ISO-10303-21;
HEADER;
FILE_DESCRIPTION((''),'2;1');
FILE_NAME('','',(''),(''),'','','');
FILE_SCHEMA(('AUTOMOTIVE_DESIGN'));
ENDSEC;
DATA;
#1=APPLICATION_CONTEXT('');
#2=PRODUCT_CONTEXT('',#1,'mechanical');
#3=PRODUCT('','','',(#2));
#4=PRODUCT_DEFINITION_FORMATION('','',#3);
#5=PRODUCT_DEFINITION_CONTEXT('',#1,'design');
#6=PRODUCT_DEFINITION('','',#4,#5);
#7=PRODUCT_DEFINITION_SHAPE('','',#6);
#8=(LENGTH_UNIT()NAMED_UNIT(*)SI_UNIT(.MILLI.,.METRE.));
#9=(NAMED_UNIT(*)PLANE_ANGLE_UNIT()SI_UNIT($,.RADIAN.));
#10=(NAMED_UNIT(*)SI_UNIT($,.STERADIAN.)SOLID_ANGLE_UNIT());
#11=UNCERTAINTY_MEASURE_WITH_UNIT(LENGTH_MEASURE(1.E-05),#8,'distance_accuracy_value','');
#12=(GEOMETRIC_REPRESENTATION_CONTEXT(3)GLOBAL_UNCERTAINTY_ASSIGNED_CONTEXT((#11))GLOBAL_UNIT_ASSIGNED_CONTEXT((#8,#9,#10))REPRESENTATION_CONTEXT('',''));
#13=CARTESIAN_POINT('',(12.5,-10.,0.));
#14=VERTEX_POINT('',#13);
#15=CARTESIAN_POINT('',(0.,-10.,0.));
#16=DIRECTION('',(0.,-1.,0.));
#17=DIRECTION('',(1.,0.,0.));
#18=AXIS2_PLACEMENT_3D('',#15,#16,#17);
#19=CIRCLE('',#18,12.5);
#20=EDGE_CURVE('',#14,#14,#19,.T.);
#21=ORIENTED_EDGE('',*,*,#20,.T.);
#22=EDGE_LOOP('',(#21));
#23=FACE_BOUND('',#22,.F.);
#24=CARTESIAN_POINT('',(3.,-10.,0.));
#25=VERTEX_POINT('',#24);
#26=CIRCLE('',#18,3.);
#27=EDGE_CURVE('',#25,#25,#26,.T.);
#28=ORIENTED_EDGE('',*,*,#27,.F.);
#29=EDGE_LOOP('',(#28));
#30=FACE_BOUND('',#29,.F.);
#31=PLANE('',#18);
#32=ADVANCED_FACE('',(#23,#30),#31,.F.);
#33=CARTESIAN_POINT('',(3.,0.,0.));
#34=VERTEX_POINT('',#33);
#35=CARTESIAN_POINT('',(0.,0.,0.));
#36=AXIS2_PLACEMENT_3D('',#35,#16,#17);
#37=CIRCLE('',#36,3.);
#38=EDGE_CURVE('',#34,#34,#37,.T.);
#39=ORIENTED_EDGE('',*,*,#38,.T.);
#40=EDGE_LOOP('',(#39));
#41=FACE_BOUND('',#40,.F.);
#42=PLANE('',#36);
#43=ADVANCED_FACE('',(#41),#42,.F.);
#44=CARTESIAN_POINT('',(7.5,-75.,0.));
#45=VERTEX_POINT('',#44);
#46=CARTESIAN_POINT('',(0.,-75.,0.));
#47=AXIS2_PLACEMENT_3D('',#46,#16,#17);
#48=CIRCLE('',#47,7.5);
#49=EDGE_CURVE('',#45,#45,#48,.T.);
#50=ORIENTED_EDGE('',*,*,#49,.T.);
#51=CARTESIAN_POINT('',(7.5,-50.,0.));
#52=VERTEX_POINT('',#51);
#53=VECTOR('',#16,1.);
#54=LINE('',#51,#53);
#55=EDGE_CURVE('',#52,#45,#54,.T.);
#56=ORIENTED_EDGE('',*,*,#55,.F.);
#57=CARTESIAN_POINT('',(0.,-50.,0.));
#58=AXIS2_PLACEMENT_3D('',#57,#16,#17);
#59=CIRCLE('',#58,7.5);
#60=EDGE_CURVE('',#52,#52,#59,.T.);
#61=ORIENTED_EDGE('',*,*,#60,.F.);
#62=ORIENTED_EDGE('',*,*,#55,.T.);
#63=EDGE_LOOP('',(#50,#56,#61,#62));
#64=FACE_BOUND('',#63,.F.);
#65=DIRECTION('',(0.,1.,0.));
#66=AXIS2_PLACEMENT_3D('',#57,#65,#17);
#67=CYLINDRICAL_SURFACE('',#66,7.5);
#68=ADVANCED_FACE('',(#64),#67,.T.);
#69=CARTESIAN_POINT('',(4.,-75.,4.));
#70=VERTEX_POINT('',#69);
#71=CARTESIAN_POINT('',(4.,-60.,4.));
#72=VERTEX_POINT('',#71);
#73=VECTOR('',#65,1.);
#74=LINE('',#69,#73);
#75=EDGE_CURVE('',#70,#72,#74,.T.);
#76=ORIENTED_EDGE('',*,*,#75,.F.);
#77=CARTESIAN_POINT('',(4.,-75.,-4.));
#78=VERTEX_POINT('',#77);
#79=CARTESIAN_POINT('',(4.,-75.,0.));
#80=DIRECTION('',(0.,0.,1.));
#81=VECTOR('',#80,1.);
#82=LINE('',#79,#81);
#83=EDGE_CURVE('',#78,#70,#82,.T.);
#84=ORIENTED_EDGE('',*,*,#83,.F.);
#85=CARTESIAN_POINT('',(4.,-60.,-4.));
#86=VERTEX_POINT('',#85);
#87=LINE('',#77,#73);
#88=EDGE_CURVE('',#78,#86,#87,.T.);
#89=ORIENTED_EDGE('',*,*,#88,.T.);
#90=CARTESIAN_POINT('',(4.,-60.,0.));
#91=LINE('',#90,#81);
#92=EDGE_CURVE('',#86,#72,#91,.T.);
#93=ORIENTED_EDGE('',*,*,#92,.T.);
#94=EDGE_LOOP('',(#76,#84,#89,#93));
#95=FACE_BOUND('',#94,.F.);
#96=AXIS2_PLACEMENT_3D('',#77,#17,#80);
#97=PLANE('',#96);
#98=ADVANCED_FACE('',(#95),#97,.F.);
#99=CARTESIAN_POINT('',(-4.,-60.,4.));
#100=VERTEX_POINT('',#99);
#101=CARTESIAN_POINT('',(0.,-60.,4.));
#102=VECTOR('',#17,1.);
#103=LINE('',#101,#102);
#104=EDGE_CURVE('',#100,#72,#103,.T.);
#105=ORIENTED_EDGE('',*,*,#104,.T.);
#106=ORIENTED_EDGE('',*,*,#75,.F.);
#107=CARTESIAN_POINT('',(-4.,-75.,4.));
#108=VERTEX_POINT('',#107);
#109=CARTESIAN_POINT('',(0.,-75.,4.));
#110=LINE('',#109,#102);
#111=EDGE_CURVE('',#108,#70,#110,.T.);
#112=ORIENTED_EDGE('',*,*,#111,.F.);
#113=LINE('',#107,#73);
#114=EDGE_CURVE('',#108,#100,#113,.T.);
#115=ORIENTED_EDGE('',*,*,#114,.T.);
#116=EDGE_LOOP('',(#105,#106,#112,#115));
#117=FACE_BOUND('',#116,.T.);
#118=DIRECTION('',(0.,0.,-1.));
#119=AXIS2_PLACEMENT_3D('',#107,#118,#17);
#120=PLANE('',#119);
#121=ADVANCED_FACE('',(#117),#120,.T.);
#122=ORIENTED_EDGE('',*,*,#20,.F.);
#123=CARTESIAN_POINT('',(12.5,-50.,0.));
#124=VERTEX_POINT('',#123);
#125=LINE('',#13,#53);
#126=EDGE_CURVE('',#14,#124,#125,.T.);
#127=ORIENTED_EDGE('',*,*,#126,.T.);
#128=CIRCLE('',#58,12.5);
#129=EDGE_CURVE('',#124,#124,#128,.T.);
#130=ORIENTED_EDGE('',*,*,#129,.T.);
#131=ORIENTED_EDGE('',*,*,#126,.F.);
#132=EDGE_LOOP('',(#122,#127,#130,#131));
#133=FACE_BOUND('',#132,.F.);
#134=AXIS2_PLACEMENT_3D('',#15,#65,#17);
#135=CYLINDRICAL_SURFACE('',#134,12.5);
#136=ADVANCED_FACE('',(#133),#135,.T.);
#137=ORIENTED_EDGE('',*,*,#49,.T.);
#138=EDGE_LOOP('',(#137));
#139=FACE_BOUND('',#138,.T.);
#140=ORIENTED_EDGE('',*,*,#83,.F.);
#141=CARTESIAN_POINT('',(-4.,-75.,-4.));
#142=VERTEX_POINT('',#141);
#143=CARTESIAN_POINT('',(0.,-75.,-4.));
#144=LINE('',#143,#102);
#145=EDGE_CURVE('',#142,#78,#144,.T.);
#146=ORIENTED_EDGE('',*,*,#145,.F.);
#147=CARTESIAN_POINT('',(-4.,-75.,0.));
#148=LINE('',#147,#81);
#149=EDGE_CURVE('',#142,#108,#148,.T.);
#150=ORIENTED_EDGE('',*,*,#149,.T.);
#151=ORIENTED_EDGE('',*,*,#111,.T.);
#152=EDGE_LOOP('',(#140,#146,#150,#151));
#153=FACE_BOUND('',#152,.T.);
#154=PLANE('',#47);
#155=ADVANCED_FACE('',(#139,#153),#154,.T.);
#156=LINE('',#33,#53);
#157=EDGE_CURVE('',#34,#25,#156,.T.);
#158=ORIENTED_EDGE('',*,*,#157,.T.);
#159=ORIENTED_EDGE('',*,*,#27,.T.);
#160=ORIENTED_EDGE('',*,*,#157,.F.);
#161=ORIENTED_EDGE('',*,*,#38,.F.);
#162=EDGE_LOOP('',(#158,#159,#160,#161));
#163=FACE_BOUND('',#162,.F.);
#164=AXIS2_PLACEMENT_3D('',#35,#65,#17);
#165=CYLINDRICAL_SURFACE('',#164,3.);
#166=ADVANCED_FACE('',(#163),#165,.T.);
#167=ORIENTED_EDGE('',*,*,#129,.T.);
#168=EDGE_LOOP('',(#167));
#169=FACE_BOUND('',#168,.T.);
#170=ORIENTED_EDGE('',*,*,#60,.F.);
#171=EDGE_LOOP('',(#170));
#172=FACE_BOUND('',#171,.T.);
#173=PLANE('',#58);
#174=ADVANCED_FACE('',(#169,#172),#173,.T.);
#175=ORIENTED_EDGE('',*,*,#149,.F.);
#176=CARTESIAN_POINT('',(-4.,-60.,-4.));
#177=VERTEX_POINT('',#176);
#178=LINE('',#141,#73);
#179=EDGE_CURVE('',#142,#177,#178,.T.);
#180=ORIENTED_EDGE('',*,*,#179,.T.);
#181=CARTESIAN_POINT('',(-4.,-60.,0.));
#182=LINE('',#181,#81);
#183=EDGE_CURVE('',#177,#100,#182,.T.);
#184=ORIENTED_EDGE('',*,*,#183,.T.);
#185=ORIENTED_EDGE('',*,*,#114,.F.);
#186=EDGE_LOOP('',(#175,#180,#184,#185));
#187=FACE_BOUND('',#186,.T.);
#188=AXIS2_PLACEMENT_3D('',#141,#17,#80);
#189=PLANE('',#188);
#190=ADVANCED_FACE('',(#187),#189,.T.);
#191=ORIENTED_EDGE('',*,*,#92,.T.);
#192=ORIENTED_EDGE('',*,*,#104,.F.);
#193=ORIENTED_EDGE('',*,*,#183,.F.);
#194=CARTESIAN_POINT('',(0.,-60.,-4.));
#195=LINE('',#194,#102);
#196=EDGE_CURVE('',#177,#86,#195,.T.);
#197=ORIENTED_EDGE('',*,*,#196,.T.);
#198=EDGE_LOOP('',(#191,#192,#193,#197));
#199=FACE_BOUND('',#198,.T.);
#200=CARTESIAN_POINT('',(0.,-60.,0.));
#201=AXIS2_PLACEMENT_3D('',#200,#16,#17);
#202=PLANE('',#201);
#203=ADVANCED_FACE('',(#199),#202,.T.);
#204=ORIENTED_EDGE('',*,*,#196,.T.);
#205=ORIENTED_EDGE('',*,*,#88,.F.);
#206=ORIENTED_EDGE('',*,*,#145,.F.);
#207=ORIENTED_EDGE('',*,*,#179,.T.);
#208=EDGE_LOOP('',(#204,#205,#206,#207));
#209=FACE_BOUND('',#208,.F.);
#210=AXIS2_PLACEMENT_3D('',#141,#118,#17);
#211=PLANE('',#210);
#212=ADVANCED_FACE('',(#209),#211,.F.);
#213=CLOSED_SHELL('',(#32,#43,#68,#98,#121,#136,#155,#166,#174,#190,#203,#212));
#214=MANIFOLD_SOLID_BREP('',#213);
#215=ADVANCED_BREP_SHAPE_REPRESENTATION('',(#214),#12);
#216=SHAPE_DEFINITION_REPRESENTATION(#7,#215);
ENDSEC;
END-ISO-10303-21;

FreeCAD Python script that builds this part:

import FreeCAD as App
import Part
import Sketcher

V = App.Vector


def add_polygon(sketch, points):
    """Adds a closed chain of lines whose ends are joined by coincident constraints."""
    first, n = sketch.GeometryCount, len(points)
    for a, b in zip(points, points[1:] + points[:1]):
        sketch.addGeometry(Part.LineSegment(App.Vector(*a, 0), App.Vector(*b, 0)), False)
    for i in range(n):
        sketch.addConstraint(Sketcher.Constraint("Coincident", first + i, 2, first + (i + 1) % n, 1))

doc = App.newDocument("Part")
params = doc.addObject("Spreadsheet::Sheet", "Params")
for row, (alias, value) in enumerate([
    ("sketch1_diameter", "6 mm"),
    ("pad1_length", "10 mm"),
    ("sketch2_diameter", "25 mm"),
    ("pad2_length", "40 mm"),
    ("sketch3_diameter", "15 mm"),
    ("pad3_length", "25 mm"),
    ("sketch4_width", "8 mm"),
    ("pocket1_length", "15 mm"),
], start=1):
    params.set(f"A{row}", alias)
    params.set(f"B{row}", "=" + value)
    params.setAlias(f"B{row}", alias)

body = doc.addObject("PartDesign::Body", "Body")

sketch1 = body.newObject("Sketcher::SketchObject", "Sketch")
sketch1.AttachmentSupport = (doc.getObject("XZ_Plane"), [""])
sketch1.MapMode = "FlatFace"
sketch1.addGeometry(Part.Circle(V(0, 0, 0), V(0, 0, 1), 3), False)
sketch1.addConstraint([
    Sketcher.Constraint("Coincident", 0, 3, -1, 1),
    Sketcher.Constraint("Diameter", 0, 6.0),
])
sketch1.setExpression("Constraints[1]", "Params.sketch1_diameter")
pad1 = body.newObject("PartDesign::Pad", "Pad")
pad1.Profile = sketch1
pad1.setExpression("Length", "Params.pad1_length")

sketch2 = body.newObject("Sketcher::SketchObject", "Sketch001")
sketch2.AttachmentSupport = (doc.getObject("XZ_Plane"), [""])
sketch2.MapMode = "FlatFace"
sketch2.AttachmentOffset = App.Placement(V(0, 0, 10), App.Rotation())
sketch2.addGeometry(Part.Circle(V(0, 0, 0), V(0, 0, 1), 12.5), False)
sketch2.addConstraint([
    Sketcher.Constraint("Coincident", 0, 3, -1, 1),
    Sketcher.Constraint("Diameter", 0, 25.0),
])
sketch2.setExpression("Constraints[1]", "Params.sketch2_diameter")
pad2 = body.newObject("PartDesign::Pad", "Pad001")
pad2.Profile = sketch2
pad2.setExpression("Length", "Params.pad2_length")

sketch3 = body.newObject("Sketcher::SketchObject", "Sketch002")
sketch3.AttachmentSupport = (doc.getObject("XZ_Plane"), [""])
sketch3.MapMode = "FlatFace"
sketch3.AttachmentOffset = App.Placement(V(0, 0, 50), App.Rotation())
sketch3.addGeometry(Part.Circle(V(0, 0, 0), V(0, 0, 1), 7.5), False)
sketch3.addConstraint([
    Sketcher.Constraint("Coincident", 0, 3, -1, 1),
    Sketcher.Constraint("Diameter", 0, 15.0),
])
sketch3.setExpression("Constraints[1]", "Params.sketch3_diameter")
pad3 = body.newObject("PartDesign::Pad", "Pad002")
pad3.Profile = sketch3
pad3.setExpression("Length", "Params.pad3_length")

sketch4 = body.newObject("Sketcher::SketchObject", "Sketch003")
sketch4.AttachmentSupport = (doc.getObject("XZ_Plane"), [""])
sketch4.MapMode = "FlatFace"
sketch4.AttachmentOffset = App.Placement(V(0, 0, 75), App.Rotation())
add_polygon(sketch4, [(-4, 4), (-4, -4), (4, -4), (4, 4)])
sketch4.addConstraint([
    Sketcher.Constraint("Vertical", 0),
    Sketcher.Constraint("Horizontal", 1),
    Sketcher.Constraint("Vertical", 2),
    Sketcher.Constraint("Horizontal", 3),
    Sketcher.Constraint("Symmetric", 0, 2, 2, 2, -1, 1),
    Sketcher.Constraint("Equal", 3, 0),
    Sketcher.Constraint("DistanceX", 1, 1, 1, 2, 8.0),
])
sketch4.setExpression("Constraints[10]", "Params.sketch4_width")
pocket1 = body.newObject("PartDesign::Pocket", "Pocket")
pocket1.Profile = sketch4
pocket1.setExpression("Length", "Params.pocket1_length")

doc.recompute()
